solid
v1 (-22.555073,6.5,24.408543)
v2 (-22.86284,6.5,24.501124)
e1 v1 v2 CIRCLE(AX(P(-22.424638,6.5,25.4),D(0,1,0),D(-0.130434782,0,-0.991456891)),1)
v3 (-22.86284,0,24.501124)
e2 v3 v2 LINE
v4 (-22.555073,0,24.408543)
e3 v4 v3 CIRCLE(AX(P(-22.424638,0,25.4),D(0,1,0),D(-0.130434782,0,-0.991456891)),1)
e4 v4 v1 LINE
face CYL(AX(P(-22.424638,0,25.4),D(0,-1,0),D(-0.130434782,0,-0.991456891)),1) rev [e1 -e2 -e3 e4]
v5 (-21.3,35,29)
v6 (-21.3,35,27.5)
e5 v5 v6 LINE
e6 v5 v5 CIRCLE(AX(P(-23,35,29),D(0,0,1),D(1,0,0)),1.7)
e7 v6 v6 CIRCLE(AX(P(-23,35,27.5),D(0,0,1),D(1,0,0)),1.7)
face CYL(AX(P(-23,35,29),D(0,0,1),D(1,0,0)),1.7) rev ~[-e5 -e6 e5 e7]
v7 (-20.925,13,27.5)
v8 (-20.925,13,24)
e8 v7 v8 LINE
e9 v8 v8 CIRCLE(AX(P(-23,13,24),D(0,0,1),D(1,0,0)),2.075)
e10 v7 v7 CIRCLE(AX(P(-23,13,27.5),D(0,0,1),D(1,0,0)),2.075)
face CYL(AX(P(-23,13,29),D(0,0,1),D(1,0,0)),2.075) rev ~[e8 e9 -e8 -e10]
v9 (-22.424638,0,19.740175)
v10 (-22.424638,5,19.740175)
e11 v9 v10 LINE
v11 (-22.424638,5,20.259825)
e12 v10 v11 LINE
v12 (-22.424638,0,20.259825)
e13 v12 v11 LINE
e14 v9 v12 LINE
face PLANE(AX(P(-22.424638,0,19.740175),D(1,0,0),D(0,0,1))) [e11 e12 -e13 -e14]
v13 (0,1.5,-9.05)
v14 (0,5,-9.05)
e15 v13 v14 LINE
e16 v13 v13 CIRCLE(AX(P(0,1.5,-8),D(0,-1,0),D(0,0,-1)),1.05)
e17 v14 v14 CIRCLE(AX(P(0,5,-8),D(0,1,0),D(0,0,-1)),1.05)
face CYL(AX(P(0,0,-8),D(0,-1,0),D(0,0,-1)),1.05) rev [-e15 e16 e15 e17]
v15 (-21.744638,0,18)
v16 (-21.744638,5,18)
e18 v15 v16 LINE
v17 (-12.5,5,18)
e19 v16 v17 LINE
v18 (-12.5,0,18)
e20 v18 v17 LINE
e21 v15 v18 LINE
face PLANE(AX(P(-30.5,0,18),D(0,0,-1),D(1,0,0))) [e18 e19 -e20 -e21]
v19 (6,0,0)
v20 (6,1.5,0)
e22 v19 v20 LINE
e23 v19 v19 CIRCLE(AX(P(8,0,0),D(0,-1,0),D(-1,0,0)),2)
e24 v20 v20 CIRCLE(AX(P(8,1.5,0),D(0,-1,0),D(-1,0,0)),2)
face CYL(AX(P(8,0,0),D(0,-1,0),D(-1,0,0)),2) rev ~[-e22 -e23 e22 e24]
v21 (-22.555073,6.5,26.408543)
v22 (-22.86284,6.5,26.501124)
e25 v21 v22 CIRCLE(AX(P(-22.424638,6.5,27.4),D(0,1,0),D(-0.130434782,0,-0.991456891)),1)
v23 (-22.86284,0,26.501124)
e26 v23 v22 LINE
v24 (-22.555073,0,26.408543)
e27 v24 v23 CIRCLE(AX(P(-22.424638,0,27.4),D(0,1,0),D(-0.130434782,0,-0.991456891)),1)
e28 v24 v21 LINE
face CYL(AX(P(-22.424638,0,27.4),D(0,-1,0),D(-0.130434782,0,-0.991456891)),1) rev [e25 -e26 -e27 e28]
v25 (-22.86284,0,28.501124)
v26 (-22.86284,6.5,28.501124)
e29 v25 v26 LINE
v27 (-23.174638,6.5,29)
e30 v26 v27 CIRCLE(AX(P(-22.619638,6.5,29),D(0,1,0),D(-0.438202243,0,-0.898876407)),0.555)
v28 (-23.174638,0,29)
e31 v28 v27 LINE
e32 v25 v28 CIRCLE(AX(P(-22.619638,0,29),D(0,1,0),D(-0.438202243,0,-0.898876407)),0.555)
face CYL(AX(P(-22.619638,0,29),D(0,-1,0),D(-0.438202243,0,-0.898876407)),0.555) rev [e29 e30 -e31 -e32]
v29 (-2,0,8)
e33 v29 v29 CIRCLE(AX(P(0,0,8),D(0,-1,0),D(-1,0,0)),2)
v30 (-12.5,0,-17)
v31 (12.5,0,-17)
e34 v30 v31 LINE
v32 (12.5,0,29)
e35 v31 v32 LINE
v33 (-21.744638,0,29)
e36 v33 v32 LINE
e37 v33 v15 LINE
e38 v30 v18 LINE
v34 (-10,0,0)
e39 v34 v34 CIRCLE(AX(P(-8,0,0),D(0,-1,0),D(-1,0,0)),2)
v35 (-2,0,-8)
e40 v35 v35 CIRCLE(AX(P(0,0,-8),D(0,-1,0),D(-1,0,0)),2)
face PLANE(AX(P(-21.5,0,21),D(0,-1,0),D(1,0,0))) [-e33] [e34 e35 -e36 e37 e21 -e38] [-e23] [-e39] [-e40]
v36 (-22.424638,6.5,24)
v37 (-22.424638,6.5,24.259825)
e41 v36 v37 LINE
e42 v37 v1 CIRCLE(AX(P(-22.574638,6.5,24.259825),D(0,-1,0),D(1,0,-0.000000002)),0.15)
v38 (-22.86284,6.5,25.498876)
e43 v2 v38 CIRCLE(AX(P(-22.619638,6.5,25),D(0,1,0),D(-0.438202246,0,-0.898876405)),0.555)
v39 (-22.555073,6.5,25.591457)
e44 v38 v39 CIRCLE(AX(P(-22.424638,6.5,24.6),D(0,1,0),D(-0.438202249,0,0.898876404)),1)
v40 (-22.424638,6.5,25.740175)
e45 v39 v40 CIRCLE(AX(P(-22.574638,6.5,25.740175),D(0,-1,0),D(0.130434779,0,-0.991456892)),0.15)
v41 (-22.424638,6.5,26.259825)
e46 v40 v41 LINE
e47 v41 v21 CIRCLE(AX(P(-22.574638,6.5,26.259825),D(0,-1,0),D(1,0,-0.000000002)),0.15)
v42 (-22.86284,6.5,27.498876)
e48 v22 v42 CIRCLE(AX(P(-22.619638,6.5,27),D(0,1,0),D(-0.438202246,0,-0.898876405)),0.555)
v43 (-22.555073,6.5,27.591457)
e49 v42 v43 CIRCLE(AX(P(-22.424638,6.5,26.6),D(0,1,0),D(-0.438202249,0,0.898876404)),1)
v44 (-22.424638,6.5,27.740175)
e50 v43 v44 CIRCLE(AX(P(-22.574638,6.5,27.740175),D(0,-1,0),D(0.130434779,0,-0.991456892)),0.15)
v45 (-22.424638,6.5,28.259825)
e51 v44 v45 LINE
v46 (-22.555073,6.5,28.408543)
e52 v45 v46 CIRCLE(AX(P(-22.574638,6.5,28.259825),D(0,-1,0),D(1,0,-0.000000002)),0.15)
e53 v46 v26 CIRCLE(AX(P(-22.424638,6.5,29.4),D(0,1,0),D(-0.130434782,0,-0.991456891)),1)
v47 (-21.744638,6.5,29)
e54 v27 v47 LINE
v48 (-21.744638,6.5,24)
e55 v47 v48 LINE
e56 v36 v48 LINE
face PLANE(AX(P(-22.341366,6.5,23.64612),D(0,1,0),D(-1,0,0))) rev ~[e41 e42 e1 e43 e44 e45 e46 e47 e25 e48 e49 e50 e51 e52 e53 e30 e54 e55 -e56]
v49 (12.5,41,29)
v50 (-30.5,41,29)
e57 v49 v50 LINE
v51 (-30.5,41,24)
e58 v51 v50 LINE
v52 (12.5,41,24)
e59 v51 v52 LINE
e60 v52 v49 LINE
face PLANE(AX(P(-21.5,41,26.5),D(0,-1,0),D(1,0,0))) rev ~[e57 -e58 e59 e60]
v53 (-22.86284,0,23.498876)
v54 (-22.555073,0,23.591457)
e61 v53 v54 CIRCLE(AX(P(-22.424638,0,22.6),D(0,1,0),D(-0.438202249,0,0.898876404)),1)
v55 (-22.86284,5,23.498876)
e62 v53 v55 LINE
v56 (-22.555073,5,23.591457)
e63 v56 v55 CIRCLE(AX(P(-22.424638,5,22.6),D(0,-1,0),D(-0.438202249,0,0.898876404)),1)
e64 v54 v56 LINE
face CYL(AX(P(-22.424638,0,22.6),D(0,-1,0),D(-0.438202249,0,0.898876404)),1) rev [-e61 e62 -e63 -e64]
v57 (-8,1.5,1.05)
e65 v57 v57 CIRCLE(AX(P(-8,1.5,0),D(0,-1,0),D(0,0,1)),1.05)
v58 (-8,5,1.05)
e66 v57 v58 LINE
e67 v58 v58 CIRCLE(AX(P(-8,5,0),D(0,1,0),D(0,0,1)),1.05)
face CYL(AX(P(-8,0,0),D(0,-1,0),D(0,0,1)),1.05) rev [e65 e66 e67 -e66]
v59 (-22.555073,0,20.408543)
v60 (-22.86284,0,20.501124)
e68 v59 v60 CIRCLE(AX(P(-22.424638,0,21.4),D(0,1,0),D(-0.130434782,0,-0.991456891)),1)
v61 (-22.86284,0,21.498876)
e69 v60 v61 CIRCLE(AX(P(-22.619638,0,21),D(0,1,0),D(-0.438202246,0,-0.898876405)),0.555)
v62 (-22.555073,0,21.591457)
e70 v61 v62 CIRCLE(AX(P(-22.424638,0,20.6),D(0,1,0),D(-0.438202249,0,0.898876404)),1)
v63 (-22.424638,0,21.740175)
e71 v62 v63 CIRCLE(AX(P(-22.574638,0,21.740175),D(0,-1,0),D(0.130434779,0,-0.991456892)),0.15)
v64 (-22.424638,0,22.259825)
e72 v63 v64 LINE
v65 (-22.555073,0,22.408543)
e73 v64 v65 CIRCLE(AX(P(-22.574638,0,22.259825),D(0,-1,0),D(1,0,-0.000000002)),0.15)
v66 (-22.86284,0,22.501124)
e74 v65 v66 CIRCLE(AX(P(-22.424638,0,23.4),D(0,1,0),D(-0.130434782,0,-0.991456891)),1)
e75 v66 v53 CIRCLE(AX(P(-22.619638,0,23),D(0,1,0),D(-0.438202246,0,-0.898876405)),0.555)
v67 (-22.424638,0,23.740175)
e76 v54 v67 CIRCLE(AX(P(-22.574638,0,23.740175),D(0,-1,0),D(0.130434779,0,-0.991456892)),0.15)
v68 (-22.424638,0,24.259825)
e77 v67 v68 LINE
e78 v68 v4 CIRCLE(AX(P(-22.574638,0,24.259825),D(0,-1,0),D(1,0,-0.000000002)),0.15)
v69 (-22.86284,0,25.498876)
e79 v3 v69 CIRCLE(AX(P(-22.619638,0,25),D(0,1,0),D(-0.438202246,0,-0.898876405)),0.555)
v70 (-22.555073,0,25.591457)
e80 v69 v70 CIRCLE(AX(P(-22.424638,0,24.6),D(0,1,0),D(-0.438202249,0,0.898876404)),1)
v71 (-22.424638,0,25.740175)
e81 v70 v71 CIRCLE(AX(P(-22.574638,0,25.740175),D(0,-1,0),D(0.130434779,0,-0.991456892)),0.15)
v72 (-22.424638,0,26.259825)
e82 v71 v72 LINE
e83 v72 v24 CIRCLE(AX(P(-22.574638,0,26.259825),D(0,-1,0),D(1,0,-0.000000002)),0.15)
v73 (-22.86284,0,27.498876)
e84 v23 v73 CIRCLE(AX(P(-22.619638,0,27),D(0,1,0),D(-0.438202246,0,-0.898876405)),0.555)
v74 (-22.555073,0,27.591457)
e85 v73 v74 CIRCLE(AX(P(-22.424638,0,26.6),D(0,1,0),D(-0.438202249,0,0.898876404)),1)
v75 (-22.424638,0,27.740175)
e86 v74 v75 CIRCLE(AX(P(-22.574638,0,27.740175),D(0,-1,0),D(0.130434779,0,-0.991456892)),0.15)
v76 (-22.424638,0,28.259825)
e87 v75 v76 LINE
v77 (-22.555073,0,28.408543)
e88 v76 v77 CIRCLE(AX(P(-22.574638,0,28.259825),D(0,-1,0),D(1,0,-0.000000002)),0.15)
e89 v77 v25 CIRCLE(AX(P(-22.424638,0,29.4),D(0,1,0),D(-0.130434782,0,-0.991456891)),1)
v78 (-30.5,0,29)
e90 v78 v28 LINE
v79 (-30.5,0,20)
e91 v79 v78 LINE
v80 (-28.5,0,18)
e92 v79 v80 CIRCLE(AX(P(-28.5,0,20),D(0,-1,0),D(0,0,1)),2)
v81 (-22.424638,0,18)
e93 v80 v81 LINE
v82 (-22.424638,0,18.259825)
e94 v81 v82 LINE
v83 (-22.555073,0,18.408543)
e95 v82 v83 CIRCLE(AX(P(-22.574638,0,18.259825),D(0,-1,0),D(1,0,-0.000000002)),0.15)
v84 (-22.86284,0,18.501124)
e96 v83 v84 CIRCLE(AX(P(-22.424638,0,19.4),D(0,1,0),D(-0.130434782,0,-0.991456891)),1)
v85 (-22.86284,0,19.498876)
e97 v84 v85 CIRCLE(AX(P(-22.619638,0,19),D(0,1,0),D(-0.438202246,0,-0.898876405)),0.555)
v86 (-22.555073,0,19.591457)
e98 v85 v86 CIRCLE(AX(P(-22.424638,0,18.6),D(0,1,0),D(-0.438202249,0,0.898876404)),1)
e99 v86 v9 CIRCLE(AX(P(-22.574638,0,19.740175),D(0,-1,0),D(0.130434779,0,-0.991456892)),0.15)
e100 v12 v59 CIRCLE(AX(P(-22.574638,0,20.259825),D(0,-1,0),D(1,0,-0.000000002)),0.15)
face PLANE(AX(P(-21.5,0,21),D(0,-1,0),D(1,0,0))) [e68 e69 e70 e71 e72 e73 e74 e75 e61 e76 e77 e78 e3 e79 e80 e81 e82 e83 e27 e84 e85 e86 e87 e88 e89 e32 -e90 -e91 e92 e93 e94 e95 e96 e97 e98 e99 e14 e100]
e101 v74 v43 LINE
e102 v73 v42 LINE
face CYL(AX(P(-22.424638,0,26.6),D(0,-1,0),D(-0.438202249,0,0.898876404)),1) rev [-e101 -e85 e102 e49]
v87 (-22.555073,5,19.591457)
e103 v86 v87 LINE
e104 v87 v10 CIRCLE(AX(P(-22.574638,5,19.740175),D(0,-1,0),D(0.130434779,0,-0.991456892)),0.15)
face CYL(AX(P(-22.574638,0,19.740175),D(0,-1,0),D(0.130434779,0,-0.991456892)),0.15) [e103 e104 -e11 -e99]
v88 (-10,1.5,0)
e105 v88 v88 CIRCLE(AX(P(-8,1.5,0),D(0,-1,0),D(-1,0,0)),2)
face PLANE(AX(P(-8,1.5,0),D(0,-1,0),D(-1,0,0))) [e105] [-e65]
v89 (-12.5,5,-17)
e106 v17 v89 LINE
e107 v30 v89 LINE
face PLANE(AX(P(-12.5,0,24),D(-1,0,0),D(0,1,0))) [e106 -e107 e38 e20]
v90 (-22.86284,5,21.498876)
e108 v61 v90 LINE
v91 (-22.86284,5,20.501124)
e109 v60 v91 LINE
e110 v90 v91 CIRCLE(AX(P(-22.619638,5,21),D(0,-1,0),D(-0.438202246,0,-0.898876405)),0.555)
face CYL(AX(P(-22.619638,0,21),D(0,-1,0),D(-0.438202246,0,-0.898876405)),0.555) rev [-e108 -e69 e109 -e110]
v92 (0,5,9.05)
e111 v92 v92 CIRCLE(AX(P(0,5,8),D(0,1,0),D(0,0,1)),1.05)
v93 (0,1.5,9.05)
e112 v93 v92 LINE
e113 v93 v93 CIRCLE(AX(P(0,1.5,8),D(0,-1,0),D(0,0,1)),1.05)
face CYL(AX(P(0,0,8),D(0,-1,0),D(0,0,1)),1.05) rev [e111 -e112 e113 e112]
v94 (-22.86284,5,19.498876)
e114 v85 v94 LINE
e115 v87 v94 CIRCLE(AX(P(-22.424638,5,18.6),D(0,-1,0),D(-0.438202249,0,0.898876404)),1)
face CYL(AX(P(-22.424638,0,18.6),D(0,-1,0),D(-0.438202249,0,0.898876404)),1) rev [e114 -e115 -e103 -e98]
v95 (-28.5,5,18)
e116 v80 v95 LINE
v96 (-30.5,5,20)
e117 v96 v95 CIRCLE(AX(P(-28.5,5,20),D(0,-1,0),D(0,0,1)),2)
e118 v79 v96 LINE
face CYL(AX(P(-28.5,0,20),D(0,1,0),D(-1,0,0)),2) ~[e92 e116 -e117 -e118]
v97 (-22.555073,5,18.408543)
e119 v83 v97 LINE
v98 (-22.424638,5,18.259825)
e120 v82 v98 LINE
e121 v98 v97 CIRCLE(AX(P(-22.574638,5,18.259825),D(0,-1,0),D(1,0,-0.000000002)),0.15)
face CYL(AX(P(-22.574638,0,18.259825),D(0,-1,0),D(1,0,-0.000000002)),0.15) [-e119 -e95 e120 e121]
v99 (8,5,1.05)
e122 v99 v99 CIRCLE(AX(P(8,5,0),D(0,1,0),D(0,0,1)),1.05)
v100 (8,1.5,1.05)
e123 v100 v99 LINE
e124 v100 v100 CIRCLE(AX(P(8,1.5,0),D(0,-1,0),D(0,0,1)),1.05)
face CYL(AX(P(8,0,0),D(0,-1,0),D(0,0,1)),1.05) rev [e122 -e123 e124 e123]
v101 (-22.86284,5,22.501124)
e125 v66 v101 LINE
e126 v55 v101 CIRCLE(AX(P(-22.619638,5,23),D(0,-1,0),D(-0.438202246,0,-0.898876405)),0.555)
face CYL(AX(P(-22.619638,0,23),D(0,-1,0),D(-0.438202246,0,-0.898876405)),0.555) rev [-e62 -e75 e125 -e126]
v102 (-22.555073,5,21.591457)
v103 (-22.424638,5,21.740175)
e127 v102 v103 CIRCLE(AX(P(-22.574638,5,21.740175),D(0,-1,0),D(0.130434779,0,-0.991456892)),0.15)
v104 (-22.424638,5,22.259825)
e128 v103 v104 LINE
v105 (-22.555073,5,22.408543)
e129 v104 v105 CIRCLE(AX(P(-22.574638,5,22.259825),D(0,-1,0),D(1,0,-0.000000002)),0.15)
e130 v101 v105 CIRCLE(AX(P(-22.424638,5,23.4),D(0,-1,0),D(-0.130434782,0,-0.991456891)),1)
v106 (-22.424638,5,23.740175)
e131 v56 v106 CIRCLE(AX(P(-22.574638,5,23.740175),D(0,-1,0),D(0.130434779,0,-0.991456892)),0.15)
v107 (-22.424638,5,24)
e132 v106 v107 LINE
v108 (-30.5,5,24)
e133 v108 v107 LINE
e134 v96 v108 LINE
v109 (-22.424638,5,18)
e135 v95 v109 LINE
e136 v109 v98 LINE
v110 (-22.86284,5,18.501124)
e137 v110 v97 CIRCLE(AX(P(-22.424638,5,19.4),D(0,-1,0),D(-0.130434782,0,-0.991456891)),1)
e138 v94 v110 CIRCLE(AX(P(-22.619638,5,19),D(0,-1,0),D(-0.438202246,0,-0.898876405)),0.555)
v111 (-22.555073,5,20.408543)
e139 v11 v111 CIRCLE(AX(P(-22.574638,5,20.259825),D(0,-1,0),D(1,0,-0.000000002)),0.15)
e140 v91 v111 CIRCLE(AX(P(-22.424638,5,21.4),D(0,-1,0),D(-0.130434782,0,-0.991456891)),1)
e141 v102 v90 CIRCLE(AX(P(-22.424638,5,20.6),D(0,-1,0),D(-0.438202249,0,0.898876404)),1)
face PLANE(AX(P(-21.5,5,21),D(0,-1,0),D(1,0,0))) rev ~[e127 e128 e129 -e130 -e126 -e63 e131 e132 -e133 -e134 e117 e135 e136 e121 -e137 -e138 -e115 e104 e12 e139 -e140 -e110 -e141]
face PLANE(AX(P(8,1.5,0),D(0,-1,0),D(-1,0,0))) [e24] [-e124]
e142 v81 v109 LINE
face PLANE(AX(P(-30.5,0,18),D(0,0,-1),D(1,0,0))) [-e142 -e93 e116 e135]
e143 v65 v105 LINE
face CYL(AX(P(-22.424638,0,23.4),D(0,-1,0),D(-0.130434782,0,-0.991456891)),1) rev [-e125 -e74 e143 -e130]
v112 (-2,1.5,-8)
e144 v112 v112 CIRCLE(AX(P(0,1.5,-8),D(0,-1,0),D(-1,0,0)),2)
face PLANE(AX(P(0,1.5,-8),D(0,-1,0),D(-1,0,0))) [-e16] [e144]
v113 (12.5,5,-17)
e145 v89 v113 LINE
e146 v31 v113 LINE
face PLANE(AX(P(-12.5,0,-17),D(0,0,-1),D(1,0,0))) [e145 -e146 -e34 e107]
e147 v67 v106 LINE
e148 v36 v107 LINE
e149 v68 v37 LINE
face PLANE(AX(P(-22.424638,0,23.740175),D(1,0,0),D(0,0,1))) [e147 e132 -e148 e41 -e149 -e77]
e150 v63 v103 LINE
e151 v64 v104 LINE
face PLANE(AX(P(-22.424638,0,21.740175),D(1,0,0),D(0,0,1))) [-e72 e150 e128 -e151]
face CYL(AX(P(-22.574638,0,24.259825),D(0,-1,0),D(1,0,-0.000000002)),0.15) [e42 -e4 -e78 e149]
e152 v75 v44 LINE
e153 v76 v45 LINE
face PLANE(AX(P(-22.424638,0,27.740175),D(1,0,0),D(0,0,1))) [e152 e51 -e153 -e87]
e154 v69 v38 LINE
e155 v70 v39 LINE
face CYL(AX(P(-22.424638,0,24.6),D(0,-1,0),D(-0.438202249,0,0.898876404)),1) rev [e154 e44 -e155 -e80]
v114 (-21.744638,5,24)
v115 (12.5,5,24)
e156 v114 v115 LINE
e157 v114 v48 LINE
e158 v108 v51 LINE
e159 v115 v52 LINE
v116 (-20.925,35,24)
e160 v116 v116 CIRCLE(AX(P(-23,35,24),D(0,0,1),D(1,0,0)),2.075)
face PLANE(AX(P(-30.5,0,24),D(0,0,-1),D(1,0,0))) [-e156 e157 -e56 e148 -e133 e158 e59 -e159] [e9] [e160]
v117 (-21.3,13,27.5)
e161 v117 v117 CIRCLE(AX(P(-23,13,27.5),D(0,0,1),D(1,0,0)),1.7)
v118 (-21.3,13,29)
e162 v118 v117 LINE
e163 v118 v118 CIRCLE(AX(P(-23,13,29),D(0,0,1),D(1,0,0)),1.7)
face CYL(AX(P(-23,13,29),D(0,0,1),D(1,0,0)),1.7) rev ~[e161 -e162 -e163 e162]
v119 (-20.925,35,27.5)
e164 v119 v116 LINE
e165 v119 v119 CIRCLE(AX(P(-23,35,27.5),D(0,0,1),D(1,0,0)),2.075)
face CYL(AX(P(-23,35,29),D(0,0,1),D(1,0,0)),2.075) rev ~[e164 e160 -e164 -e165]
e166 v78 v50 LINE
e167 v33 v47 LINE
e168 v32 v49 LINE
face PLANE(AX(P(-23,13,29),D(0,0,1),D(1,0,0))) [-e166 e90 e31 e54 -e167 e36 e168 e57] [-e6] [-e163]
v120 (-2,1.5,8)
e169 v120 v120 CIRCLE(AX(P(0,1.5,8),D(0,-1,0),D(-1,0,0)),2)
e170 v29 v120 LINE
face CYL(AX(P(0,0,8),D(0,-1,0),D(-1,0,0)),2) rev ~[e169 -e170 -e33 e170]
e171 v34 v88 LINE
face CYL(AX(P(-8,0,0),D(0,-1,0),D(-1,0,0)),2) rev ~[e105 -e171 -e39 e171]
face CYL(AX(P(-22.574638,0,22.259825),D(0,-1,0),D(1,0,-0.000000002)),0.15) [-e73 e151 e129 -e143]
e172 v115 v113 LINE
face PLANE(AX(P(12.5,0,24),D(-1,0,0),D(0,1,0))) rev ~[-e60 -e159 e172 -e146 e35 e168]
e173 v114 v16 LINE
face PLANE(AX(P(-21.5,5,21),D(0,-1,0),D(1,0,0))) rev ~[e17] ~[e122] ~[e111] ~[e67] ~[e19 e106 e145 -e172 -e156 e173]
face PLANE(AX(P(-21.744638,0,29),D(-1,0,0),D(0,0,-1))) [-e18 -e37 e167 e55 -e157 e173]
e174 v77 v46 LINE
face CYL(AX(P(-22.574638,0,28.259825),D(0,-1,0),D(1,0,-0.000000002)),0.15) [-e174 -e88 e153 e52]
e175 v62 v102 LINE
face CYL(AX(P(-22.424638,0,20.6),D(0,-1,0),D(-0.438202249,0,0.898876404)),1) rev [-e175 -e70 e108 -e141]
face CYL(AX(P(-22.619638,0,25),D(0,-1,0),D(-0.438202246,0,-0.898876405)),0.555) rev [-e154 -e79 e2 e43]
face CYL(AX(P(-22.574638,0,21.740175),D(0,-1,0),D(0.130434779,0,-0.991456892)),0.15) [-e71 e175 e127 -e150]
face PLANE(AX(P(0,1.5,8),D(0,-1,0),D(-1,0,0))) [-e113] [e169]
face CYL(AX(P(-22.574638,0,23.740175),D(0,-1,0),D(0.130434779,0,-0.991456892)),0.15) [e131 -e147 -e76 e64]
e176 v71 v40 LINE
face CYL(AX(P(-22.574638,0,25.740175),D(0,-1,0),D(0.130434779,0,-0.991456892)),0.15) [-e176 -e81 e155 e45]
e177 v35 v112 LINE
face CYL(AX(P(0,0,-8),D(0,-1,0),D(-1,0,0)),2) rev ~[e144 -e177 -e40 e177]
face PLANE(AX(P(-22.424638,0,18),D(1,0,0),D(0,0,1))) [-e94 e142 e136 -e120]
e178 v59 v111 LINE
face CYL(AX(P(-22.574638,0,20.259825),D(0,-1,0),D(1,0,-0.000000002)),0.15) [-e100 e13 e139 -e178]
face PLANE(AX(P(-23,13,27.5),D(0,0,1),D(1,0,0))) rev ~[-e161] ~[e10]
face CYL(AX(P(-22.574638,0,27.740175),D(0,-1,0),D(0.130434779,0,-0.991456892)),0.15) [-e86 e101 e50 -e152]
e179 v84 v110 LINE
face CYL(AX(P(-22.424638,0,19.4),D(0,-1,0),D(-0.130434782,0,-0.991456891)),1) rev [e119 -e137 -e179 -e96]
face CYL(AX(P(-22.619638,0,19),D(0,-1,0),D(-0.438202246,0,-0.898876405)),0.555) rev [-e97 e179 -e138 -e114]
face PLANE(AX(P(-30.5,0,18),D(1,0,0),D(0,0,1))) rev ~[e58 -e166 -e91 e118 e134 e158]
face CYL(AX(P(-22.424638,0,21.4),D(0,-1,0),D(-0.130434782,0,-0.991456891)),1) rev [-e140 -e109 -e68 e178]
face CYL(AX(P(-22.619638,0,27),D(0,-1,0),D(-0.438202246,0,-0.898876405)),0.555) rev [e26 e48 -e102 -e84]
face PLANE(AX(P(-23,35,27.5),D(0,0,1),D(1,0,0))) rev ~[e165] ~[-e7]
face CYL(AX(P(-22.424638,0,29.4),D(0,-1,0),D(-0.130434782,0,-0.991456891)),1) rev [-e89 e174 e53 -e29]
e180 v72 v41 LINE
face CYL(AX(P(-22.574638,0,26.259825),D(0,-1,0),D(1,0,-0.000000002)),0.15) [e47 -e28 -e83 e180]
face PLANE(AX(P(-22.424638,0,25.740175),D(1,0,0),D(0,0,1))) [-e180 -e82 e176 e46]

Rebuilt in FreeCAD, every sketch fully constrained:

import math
import FreeCAD as App
import Part
import Sketcher
from FreeCAD import Vector


def edges_at(feature, points):
    """Names of the edges that pass closest to the given points."""
    edges = feature.Shape.Edges
    near = lambda p: min(range(len(edges)), key=lambda i: edges[i].distToShape(Part.Vertex(*p))[0])
    return sorted({f"Edge{near(p) + 1}" for p in points})


def add_polygon(sketch, points):
    """Adds a closed chain of lines whose ends are joined by coincident constraints."""
    first, n = sketch.GeometryCount, len(points)
    for a, b in zip(points, points[1:] + points[:1]):
        sketch.addGeometry(Part.LineSegment(App.Vector(*a, 0), App.Vector(*b, 0)), False)
    for i in range(n):
        sketch.addConstraint(Sketcher.Constraint("Coincident", first + i, 2, first + (i + 1) % n, 1))

doc = App.newDocument("Part")
params = doc.addObject("Spreadsheet::Sheet", "Params")
for row, (alias, value) in enumerate([
    ("sketch1_diameter", "2.1 mm"),
    ("sketch1_width", "25 mm"),
    ("sketch1_height", "41 mm"),
    ("pad1_length", "5 mm"),
    ("sketch2_width", "25 mm"),
    ("sketch2_height", "41 mm"),
    ("pad2_length", "5 mm"),
    ("sketch3_width", "18 mm"),
    ("sketch3_height", "5 mm"),
    ("pad3_length", "41 mm"),
    ("sketch4_diameter", "4.15 mm"),
    ("pocket1_length", "5 mm"),
    ("sketch5_diameter", "3.4 mm"),
    ("sketch5_diameter2", "4.15 mm"),
    ("pad4_length", "1.5 mm"),
    ("sketch6_width", "18 mm"),
    ("sketch6_height", "6 mm"),
    ("pad5_length", "5 mm"),
    ("fillet_radius", "2 mm"),
    ("sketch7_diameter", "4 mm"),
    ("pocket2_length", "1.5 mm"),
    ("sketch8_radius", "1 mm"),
    ("sketch8_height", "11 mm"),
    ("sketch8_radius2", "0.15 mm"),
    ("sketch8_width", "1.43 mm"),
    ("sketch8_width2", "0.68 mm"),
    ("pocket3_length", "6.5 mm"),
], start=1):
    params.set(f"A{row}", alias)
    params.set(f"B{row}", "=" + value)
    params.setAlias(f"B{row}", alias)

body = doc.addObject("PartDesign::Body", "Body")

# Sketch on XZ plane
sketch1 = body.newObject("Sketcher::SketchObject", "Sketch")
sketch1.AttachmentSupport = (doc.getObject("XZ_Plane"), [""])
sketch1.MapMode = "FlatFace"
add_polygon(sketch1, [(-12.5, -17), (-12.5, 24), (12.5, 24), (12.5, -17)])  # lines 0-3
sketch1.addGeometry(Part.Circle(Vector(0, 8, 0), Vector(0, 0, 1), 1.1), False)  # 4
sketch1.addGeometry(Part.Circle(Vector(-8, 0, 0), Vector(0, 0, 1), 1.1), False)  # 5
sketch1.addGeometry(Part.Circle(Vector(8, 0, 0), Vector(0, 0, 1), 1.1), False)  # 6
sketch1.addGeometry(Part.Circle(Vector(0, -8, 0), Vector(0, 0, 1), 1.1), False)  # 7
sketch1.addConstraint(Sketcher.Constraint("Vertical", 0))
sketch1.addConstraint(Sketcher.Constraint("Horizontal", 1))
sketch1.addConstraint(Sketcher.Constraint("Vertical", 2))
sketch1.addConstraint(Sketcher.Constraint("Horizontal", 3))
sketch1.addConstraint(Sketcher.Constraint("Equal", 4, 5))
sketch1.addConstraint(Sketcher.Constraint("Equal", 5, 6))
sketch1.addConstraint(Sketcher.Constraint("Equal", 6, 7))
sketch1.addConstraint(Sketcher.Constraint("Symmetric", 5, 3, 6, 3, -1, 1))
sketch1.addConstraint(Sketcher.Constraint("Symmetric", 4, 3, 7, 3, -1, 1))
sketch1.addConstraint(Sketcher.Constraint("PointOnObject", 4, 3, -2))
sketch1.addConstraint(Sketcher.Constraint("PointOnObject", 5, 3, -1))
sketch1.addConstraint(Sketcher.Constraint("Diameter", 4, 2.1))
sketch1.addConstraint(Sketcher.Constraint("DistanceX", 1, 1, 1, 2, 25.0))
sketch1.addConstraint(Sketcher.Constraint("DistanceY", 0, 1, 0, 2, 41.0))
sketch1.addConstraint(Sketcher.Constraint("DistanceY", -1, 1, 4, 3, 8.0))
sketch1.addConstraint(Sketcher.Constraint("DistanceX", 5, 3, -1, 1, 8.0))
sketch1.addConstraint(Sketcher.Constraint("DistanceY", -1, 1, 0, 2, 24.0))
sketch1.addConstraint(Sketcher.Constraint("DistanceX", 0, 2, -1, 1, 12.5))
sketch1.setExpression("Constraints[15]", "Params.sketch1_diameter")
sketch1.setExpression("Constraints[16]", "Params.sketch1_width")
sketch1.setExpression("Constraints[17]", "Params.sketch1_height")
pad1 = body.newObject("PartDesign::Pad", "Pad")
pad1.Profile = sketch1
pad1.setExpression("Length", "Params.pad1_length")
pad1.Reversed = True

# Sketch on XY plane
sketch2 = body.newObject("Sketcher::SketchObject", "Sketch001")
sketch2.AttachmentSupport = (doc.getObject("XY_Plane"), [""])
sketch2.MapMode = "FlatFace"
sketch2.AttachmentOffset = App.Placement(Vector(0, 0, 24), App.Rotation())
add_polygon(sketch2, [(-12, 41), (-12, 0), (12, 0), (12, 41)])  # lines 0-3
sketch2.addConstraint(Sketcher.Constraint("Vertical", 0))
sketch2.addConstraint(Sketcher.Constraint("Horizontal", 1))
sketch2.addConstraint(Sketcher.Constraint("Vertical", 2))
sketch2.addConstraint(Sketcher.Constraint("Horizontal", 3))
sketch2.addConstraint(Sketcher.Constraint("Symmetric", 0, 2, 1, 2, -1, 1))
sketch2.addConstraint(Sketcher.Constraint("DistanceX", 1, 1, 1, 2, 25.0))
sketch2.addConstraint(Sketcher.Constraint("DistanceY", 0, 2, 0, 1, 41.0))
sketch2.setExpression("Constraints[9]", "Params.sketch2_width")
sketch2.setExpression("Constraints[10]", "Params.sketch2_height")
pad2 = body.newObject("PartDesign::Pad", "Pad001")
pad2.Profile = sketch2
pad2.setExpression("Length", "Params.pad2_length")

# Sketch on XZ plane
sketch3 = body.newObject("Sketcher::SketchObject", "Sketch002")
sketch3.AttachmentSupport = (doc.getObject("XZ_Plane"), [""])
sketch3.MapMode = "FlatFace"
add_polygon(sketch3, [(-30, 29), (-30, 24), (-12, 24), (-12, 29)])  # lines 0-3
sketch3.addConstraint(Sketcher.Constraint("Vertical", 0))
sketch3.addConstraint(Sketcher.Constraint("Horizontal", 1))
sketch3.addConstraint(Sketcher.Constraint("Vertical", 2))
sketch3.addConstraint(Sketcher.Constraint("Horizontal", 3))
sketch3.addConstraint(Sketcher.Constraint("DistanceX", 1, 1, 1, 2, 18.0))
sketch3.addConstraint(Sketcher.Constraint("DistanceY", 0, 2, 0, 1, 5.0))
sketch3.addConstraint(Sketcher.Constraint("DistanceY", -1, 1, 0, 2, 24.0))
sketch3.addConstraint(Sketcher.Constraint("DistanceX", 0, 2, -1, 1, 30.5))
sketch3.setExpression("Constraints[8]", "Params.sketch3_width")
sketch3.setExpression("Constraints[9]", "Params.sketch3_height")
pad3 = body.newObject("PartDesign::Pad", "Pad002")
pad3.Profile = sketch3
pad3.setExpression("Length", "Params.pad3_length")
pad3.Reversed = True

# Sketch on XY plane
sketch4 = body.newObject("Sketcher::SketchObject", "Sketch003")
sketch4.AttachmentSupport = (doc.getObject("XY_Plane"), [""])
sketch4.MapMode = "FlatFace"
sketch4.AttachmentOffset = App.Placement(Vector(0, 0, 29), App.Rotation())
sketch4.addGeometry(Part.Circle(Vector(-23, 13, 0), Vector(0, 0, 1), 2.1), False)
sketch4.addGeometry(Part.Circle(Vector(-23, 35, 0), Vector(0, 0, 1), 2.1), False)
sketch4.addConstraint(Sketcher.Constraint("Equal", 0, 1))
sketch4.addConstraint(Sketcher.Constraint("Vertical", 0, 3, 1, 3))
sketch4.addConstraint(Sketcher.Constraint("Diameter", 0, 4.15))
sketch4.addConstraint(Sketcher.Constraint("DistanceX", 0, 3, -1, 1, 23.0))
sketch4.addConstraint(Sketcher.Constraint("DistanceY", -1, 1, 0, 3, 13.0))
sketch4.addConstraint(Sketcher.Constraint("DistanceY", -1, 1, 1, 3, 35.0))
sketch4.setExpression("Constraints[2]", "Params.sketch4_diameter")
pocket1 = body.newObject("PartDesign::Pocket", "Pocket")
pocket1.Profile = sketch4
pocket1.setExpression("Length", "Params.pocket1_length")

# Sketch on XY plane
sketch5 = body.newObject("Sketcher::SketchObject", "Sketch004")
sketch5.AttachmentSupport = (doc.getObject("XY_Plane"), [""])
sketch5.MapMode = "FlatFace"
sketch5.AttachmentOffset = App.Placement(Vector(0, 0, 29), App.Rotation())
sketch5.addGeometry(Part.Circle(Vector(-23, 13, 0), Vector(0, 0, 1), 2.1), False)
sketch5.addGeometry(Part.Circle(Vector(-23, 13, 0), Vector(0, 0, 1), 1.7), False)
sketch5.addGeometry(Part.Circle(Vector(-23, 35, 0), Vector(0, 0, 1), 2.1), False)
sketch5.addGeometry(Part.Circle(Vector(-23, 35, 0), Vector(0, 0, 1), 1.7), False)
sketch5.addConstraint(Sketcher.Constraint("Coincident", 1, 3, 0, 3))
sketch5.addConstraint(Sketcher.Constraint("Coincident", 3, 3, 2, 3))
sketch5.addConstraint(Sketcher.Constraint("Equal", 0, 2))
sketch5.addConstraint(Sketcher.Constraint("Equal", 1, 3))
sketch5.addConstraint(Sketcher.Constraint("Vertical", 1, 3, 2, 3))
sketch5.addConstraint(Sketcher.Constraint("Diameter", 1, 3.4))
sketch5.addConstraint(Sketcher.Constraint("Diameter", 0, 4.15))
sketch5.addConstraint(Sketcher.Constraint("DistanceX", 0, 3, -1, 1, 23.0))
sketch5.addConstraint(Sketcher.Constraint("DistanceY", -1, 1, 0, 3, 13.0))
sketch5.addConstraint(Sketcher.Constraint("DistanceY", -1, 1, 2, 3, 35.0))
sketch5.setExpression("Constraints[5]", "Params.sketch5_diameter")
sketch5.setExpression("Constraints[6]", "Params.sketch5_diameter2")
pad4 = body.newObject("PartDesign::Pad", "Pad003")
pad4.Profile = sketch5
pad4.setExpression("Length", "Params.pad4_length")
pad4.Reversed = True

# Sketch on XZ plane
sketch6 = body.newObject("Sketcher::SketchObject", "Sketch005")
sketch6.AttachmentSupport = (doc.getObject("XZ_Plane"), [""])
sketch6.MapMode = "FlatFace"
add_polygon(sketch6, [(-30, 24), (-30, 18), (-12, 18), (-12, 24)])  # lines 0-3
sketch6.addConstraint(Sketcher.Constraint("Vertical", 0))
sketch6.addConstraint(Sketcher.Constraint("Horizontal", 1))
sketch6.addConstraint(Sketcher.Constraint("Vertical", 2))
sketch6.addConstraint(Sketcher.Constraint("Horizontal", 3))
sketch6.addConstraint(Sketcher.Constraint("DistanceX", 1, 1, 1, 2, 18.0))
sketch6.addConstraint(Sketcher.Constraint("DistanceY", 0, 2, 0, 1, 6.0))
sketch6.addConstraint(Sketcher.Constraint("DistanceY", -1, 1, 0, 2, 18.0))
sketch6.addConstraint(Sketcher.Constraint("DistanceX", 0, 2, -1, 1, 30.5))
sketch6.setExpression("Constraints[8]", "Params.sketch6_width")
sketch6.setExpression("Constraints[9]", "Params.sketch6_height")
pad5 = body.newObject("PartDesign::Pad", "Pad004")
pad5.Profile = sketch6
pad5.setExpression("Length", "Params.pad5_length")
pad5.Reversed = True
doc.recompute()

fillet = body.newObject("PartDesign::Fillet", "Fillet")
fillet.Base = (pad5, edges_at(pad5, [(-30.5, 2.5, 18)]))
fillet.setExpression("Radius", "Params.fillet_radius")

# Sketch on XZ plane
sketch7 = body.newObject("Sketcher::SketchObject", "Sketch006")
sketch7.AttachmentSupport = (doc.getObject("XZ_Plane"), [""])
sketch7.MapMode = "FlatFace"
sketch7.addGeometry(Part.Circle(Vector(0, 8, 0), Vector(0, 0, 1), 2), False)
sketch7.addGeometry(Part.Circle(Vector(-8, 0, 0), Vector(0, 0, 1), 2), False)
sketch7.addGeometry(Part.Circle(Vector(0, -8, 0), Vector(0, 0, 1), 2), False)
sketch7.addGeometry(Part.Circle(Vector(8, 0, 0), Vector(0, 0, 1), 2), False)
sketch7.addConstraint(Sketcher.Constraint("Equal", 0, 1))
sketch7.addConstraint(Sketcher.Constraint("Equal", 1, 2))
sketch7.addConstraint(Sketcher.Constraint("Equal", 2, 3))
sketch7.addConstraint(Sketcher.Constraint("Symmetric", 0, 3, 2, 3, -1, 1))
sketch7.addConstraint(Sketcher.Constraint("Symmetric", 1, 3, 3, 3, -1, 1))
sketch7.addConstraint(Sketcher.Constraint("PointOnObject", 0, 3, -2))
sketch7.addConstraint(Sketcher.Constraint("PointOnObject", 1, 3, -1))
sketch7.addConstraint(Sketcher.Constraint("Diameter", 0, 4.0))
sketch7.addConstraint(Sketcher.Constraint("DistanceY", -1, 1, 0, 3, 8.0))
sketch7.addConstraint(Sketcher.Constraint("DistanceX", 1, 3, -1, 1, 8.0))
sketch7.setExpression("Constraints[7]", "Params.sketch7_diameter")
pocket2 = body.newObject("PartDesign::Pocket", "Pocket001")
pocket2.Profile = sketch7
pocket2.setExpression("Length", "Params.pocket2_length")

# Sketch on XZ plane
sketch8 = body.newObject("Sketcher::SketchObject", "Sketch007")
sketch8.AttachmentSupport = (doc.getObject("XZ_Plane"), [""])
sketch8.MapMode = "FlatFace"
sketch8.addGeometry(Part.LineSegment(Vector(-21.74, 18, 0), Vector(-21.74, 29, 0)), False)
sketch8.addGeometry(Part.LineSegment(Vector(-21.74, 29, 0), Vector(-23.17, 29, 0)), False)
sketch8.addGeometry(Part.ArcOfCircle(Part.Circle(Vector(-22.62, 29, 0), Vector(0, 0, 1), 0.55), math.radians(180), math.radians(244)), False)
sketch8.addGeometry(Part.ArcOfCircle(Part.Circle(Vector(-22.42, 29.4, 0), Vector(0, 0, 1), 1), math.radians(-115.99), math.radians(-97.49)), False)
sketch8.addGeometry(Part.ArcOfCircle(Part.Circle(Vector(-22.57, 28.26, 0), Vector(0, 0, 1), 0.15), math.radians(0), math.radians(83)), False)
sketch8.addGeometry(Part.LineSegment(Vector(-22.42, 28.26, 0), Vector(-22.42, 27.74, 0)), False)
sketch8.addGeometry(Part.ArcOfCircle(Part.Circle(Vector(-22.57, 27.74, 0), Vector(0, 0, 1), 0.15), math.radians(-83), math.radians(0)), False)
sketch8.addGeometry(Part.ArcOfCircle(Part.Circle(Vector(-22.42, 26.6, 0), Vector(0, 0, 1), 1), math.radians(97.49), math.radians(115.99)), False)
sketch8.addGeometry(Part.ArcOfCircle(Part.Circle(Vector(-22.62, 27, 0), Vector(0, 0, 1), 0.55), math.radians(116), math.radians(244)), False)
sketch8.addGeometry(Part.ArcOfCircle(Part.Circle(Vector(-22.42, 27.4, 0), Vector(0, 0, 1), 1), math.radians(-115.99), math.radians(-97.49)), False)
sketch8.addGeometry(Part.ArcOfCircle(Part.Circle(Vector(-22.57, 26.26, 0), Vector(0, 0, 1), 0.15), math.radians(0), math.radians(83)), False)
sketch8.addGeometry(Part.LineSegment(Vector(-22.42, 26.26, 0), Vector(-22.42, 25.74, 0)), False)
sketch8.addGeometry(Part.ArcOfCircle(Part.Circle(Vector(-22.57, 25.74, 0), Vector(0, 0, 1), 0.15), math.radians(-83), math.radians(0)), False)
sketch8.addGeometry(Part.ArcOfCircle(Part.Circle(Vector(-22.42, 24.6, 0), Vector(0, 0, 1), 1), math.radians(97.49), math.radians(115.99)), False)
sketch8.addGeometry(Part.ArcOfCircle(Part.Circle(Vector(-22.62, 25, 0), Vector(0, 0, 1), 0.55), math.radians(116), math.radians(244)), False)
sketch8.addGeometry(Part.ArcOfCircle(Part.Circle(Vector(-22.42, 25.4, 0), Vector(0, 0, 1), 1), math.radians(-115.99), math.radians(-97.49)), False)
sketch8.addGeometry(Part.ArcOfCircle(Part.Circle(Vector(-22.57, 24.26, 0), Vector(0, 0, 1), 0.15), math.radians(0), math.radians(83)), False)
sketch8.addGeometry(Part.LineSegment(Vector(-22.42, 24.26, 0), Vector(-22.42, 23.74, 0)), False)
sketch8.addGeometry(Part.ArcOfCircle(Part.Circle(Vector(-22.57, 23.74, 0), Vector(0, 0, 1), 0.15), math.radians(-83), math.radians(0)), False)
sketch8.addGeometry(Part.ArcOfCircle(Part.Circle(Vector(-22.42, 22.6, 0), Vector(0, 0, 1), 1), math.radians(97.49), math.radians(115.99)), False)
sketch8.addGeometry(Part.ArcOfCircle(Part.Circle(Vector(-22.62, 23, 0), Vector(0, 0, 1), 0.55), math.radians(116), math.radians(244)), False)
sketch8.addGeometry(Part.ArcOfCircle(Part.Circle(Vector(-22.42, 23.4, 0), Vector(0, 0, 1), 1), math.radians(-115.99), math.radians(-97.49)), False)
sketch8.addGeometry(Part.ArcOfCircle(Part.Circle(Vector(-22.57, 22.26, 0), Vector(0, 0, 1), 0.15), math.radians(0), math.radians(83)), False)
sketch8.addGeometry(Part.LineSegment(Vector(-22.42, 22.26, 0), Vector(-22.42, 21.74, 0)), False)
sketch8.addGeometry(Part.ArcOfCircle(Part.Circle(Vector(-22.57, 21.74, 0), Vector(0, 0, 1), 0.15), math.radians(-83), math.radians(0)), False)
sketch8.addGeometry(Part.ArcOfCircle(Part.Circle(Vector(-22.42, 20.6, 0), Vector(0, 0, 1), 1), math.radians(97.49), math.radians(115.99)), False)
sketch8.addGeometry(Part.ArcOfCircle(Part.Circle(Vector(-22.62, 21, 0), Vector(0, 0, 1), 0.55), math.radians(116), math.radians(244)), False)
sketch8.addGeometry(Part.ArcOfCircle(Part.Circle(Vector(-22.42, 21.4, 0), Vector(0, 0, 1), 1), math.radians(-115.99), math.radians(-97.49)), False)
sketch8.addGeometry(Part.ArcOfCircle(Part.Circle(Vector(-22.57, 20.26, 0), Vector(0, 0, 1), 0.15), math.radians(0), math.radians(83)), False)
sketch8.addGeometry(Part.LineSegment(Vector(-22.42, 20.26, 0), Vector(-22.42, 19.74, 0)), False)
sketch8.addGeometry(Part.ArcOfCircle(Part.Circle(Vector(-22.57, 19.74, 0), Vector(0, 0, 1), 0.15), math.radians(-83), math.radians(0)), False)
sketch8.addGeometry(Part.ArcOfCircle(Part.Circle(Vector(-22.42, 18.6, 0), Vector(0, 0, 1), 1), math.radians(97.49), math.radians(115.99)), False)
sketch8.addGeometry(Part.ArcOfCircle(Part.Circle(Vector(-22.62, 19, 0), Vector(0, 0, 1), 0.55), math.radians(116), math.radians(244)), False)
sketch8.addGeometry(Part.ArcOfCircle(Part.Circle(Vector(-22.42, 19.4, 0), Vector(0, 0, 1), 1), math.radians(-115.99), math.radians(-97.49)), False)
sketch8.addGeometry(Part.ArcOfCircle(Part.Circle(Vector(-22.57, 18.26, 0), Vector(0, 0, 1), 0.15), math.radians(0), math.radians(83)), False)
sketch8.addGeometry(Part.LineSegment(Vector(-22.42, 18.26, 0), Vector(-22.42, 18, 0)), False)
sketch8.addGeometry(Part.LineSegment(Vector(-22.42, 18, 0), Vector(-21.74, 18, 0)), False)
sketch8.addConstraint(Sketcher.Constraint("Coincident", 0, 2, 1, 1))
sketch8.addConstraint(Sketcher.Constraint("Coincident", 1, 2, 2, 1))
sketch8.addConstraint(Sketcher.Constraint("Tangent", 2, 2, 3, 1))
sketch8.addConstraint(Sketcher.Constraint("Tangent", 3, 2, 4, 2))
sketch8.addConstraint(Sketcher.Constraint("Tangent", 4, 1, 5, 1))
sketch8.addConstraint(Sketcher.Constraint("Tangent", 5, 2, 6, 2))
sketch8.addConstraint(Sketcher.Constraint("Tangent", 6, 1, 7, 1))
sketch8.addConstraint(Sketcher.Constraint("Tangent", 7, 2, 8, 1))
sketch8.addConstraint(Sketcher.Constraint("Tangent", 8, 2, 9, 1))
sketch8.addConstraint(Sketcher.Constraint("Tangent", 9, 2, 10, 2))
sketch8.addConstraint(Sketcher.Constraint("Tangent", 10, 1, 11, 1))
sketch8.addConstraint(Sketcher.Constraint("Tangent", 11, 2, 12, 2))
sketch8.addConstraint(Sketcher.Constraint("Tangent", 12, 1, 13, 1))
sketch8.addConstraint(Sketcher.Constraint("Tangent", 13, 2, 14, 1))
sketch8.addConstraint(Sketcher.Constraint("Tangent", 14, 2, 15, 1))
sketch8.addConstraint(Sketcher.Constraint("Tangent", 15, 2, 16, 2))
sketch8.addConstraint(Sketcher.Constraint("Tangent", 16, 1, 17, 1))
sketch8.addConstraint(Sketcher.Constraint("Tangent", 17, 2, 18, 2))
sketch8.addConstraint(Sketcher.Constraint("Tangent", 18, 1, 19, 1))
sketch8.addConstraint(Sketcher.Constraint("Tangent", 19, 2, 20, 1))
sketch8.addConstraint(Sketcher.Constraint("Tangent", 20, 2, 21, 1))
sketch8.addConstraint(Sketcher.Constraint("Tangent", 21, 2, 22, 2))
sketch8.addConstraint(Sketcher.Constraint("Tangent", 22, 1, 23, 1))
sketch8.addConstraint(Sketcher.Constraint("Tangent", 23, 2, 24, 2))
sketch8.addConstraint(Sketcher.Constraint("Tangent", 24, 1, 25, 1))
sketch8.addConstraint(Sketcher.Constraint("Tangent", 25, 2, 26, 1))
sketch8.addConstraint(Sketcher.Constraint("Tangent", 26, 2, 27, 1))
sketch8.addConstraint(Sketcher.Constraint("Tangent", 27, 2, 28, 2))
sketch8.addConstraint(Sketcher.Constraint("Tangent", 28, 1, 29, 1))
sketch8.addConstraint(Sketcher.Constraint("Tangent", 29, 2, 30, 2))
sketch8.addConstraint(Sketcher.Constraint("Tangent", 30, 1, 31, 1))
sketch8.addConstraint(Sketcher.Constraint("Tangent", 31, 2, 32, 1))
sketch8.addConstraint(Sketcher.Constraint("Tangent", 32, 2, 33, 1))
sketch8.addConstraint(Sketcher.Constraint("Tangent", 33, 2, 34, 2))
sketch8.addConstraint(Sketcher.Constraint("Tangent", 34, 1, 35, 1))
sketch8.addConstraint(Sketcher.Constraint("Coincident", 35, 2, 36, 1))
sketch8.addConstraint(Sketcher.Constraint("Coincident", 36, 2, 0, 1))
sketch8.addConstraint(Sketcher.Constraint("Vertical", 0))
sketch8.addConstraint(Sketcher.Constraint("Horizontal", 1))
sketch8.addConstraint(Sketcher.Constraint("Vertical", 5))
sketch8.addConstraint(Sketcher.Constraint("Vertical", 11))
sketch8.addConstraint(Sketcher.Constraint("Vertical", 17))
sketch8.addConstraint(Sketcher.Constraint("Vertical", 23))
sketch8.addConstraint(Sketcher.Constraint("Vertical", 29))
sketch8.addConstraint(Sketcher.Constraint("Vertical", 35))
sketch8.addConstraint(Sketcher.Constraint("Horizontal", 36))
sketch8.addConstraint(Sketcher.Constraint("Equal", 4, 6))
sketch8.addConstraint(Sketcher.Constraint("Equal", 3, 7))
sketch8.addConstraint(Sketcher.Constraint("Equal", 2, 8))
sketch8.addConstraint(Sketcher.Constraint("Equal", 7, 9))
sketch8.addConstraint(Sketcher.Constraint("Equal", 6, 10))
sketch8.addConstraint(Sketcher.Constraint("Equal", 10, 12))
sketch8.addConstraint(Sketcher.Constraint("Equal", 9, 13))
sketch8.addConstraint(Sketcher.Constraint("Equal", 8, 14))
sketch8.addConstraint(Sketcher.Constraint("Equal", 13, 15))
sketch8.addConstraint(Sketcher.Constraint("Equal", 12, 16))
sketch8.addConstraint(Sketcher.Constraint("Equal", 16, 18))
sketch8.addConstraint(Sketcher.Constraint("Equal", 15, 19))
sketch8.addConstraint(Sketcher.Constraint("Equal", 14, 20))
sketch8.addConstraint(Sketcher.Constraint("Equal", 19, 21))
sketch8.addConstraint(Sketcher.Constraint("Equal", 18, 22))
sketch8.addConstraint(Sketcher.Constraint("Equal", 22, 24))
sketch8.addConstraint(Sketcher.Constraint("Equal", 21, 25))
sketch8.addConstraint(Sketcher.Constraint("Equal", 20, 26))
sketch8.addConstraint(Sketcher.Constraint("Equal", 25, 27))
sketch8.addConstraint(Sketcher.Constraint("Equal", 24, 28))
sketch8.addConstraint(Sketcher.Constraint("Equal", 28, 30))
sketch8.addConstraint(Sketcher.Constraint("Equal", 27, 31))
sketch8.addConstraint(Sketcher.Constraint("Equal", 26, 32))
sketch8.addConstraint(Sketcher.Constraint("Equal", 31, 33))
sketch8.addConstraint(Sketcher.Constraint("Equal", 30, 34))
sketch8.addConstraint(Sketcher.Constraint("Horizontal", 2, 3, 0, 2))
sketch8.addConstraint(Sketcher.Constraint("Vertical", 3, 3, 7, 3))
sketch8.addConstraint(Sketcher.Constraint("Vertical", 2, 3, 8, 3))
sketch8.addConstraint(Sketcher.Constraint("Vertical", 7, 3, 9, 3))
sketch8.addConstraint(Sketcher.Constraint("Vertical", 6, 3, 10, 3))
sketch8.addConstraint(Sketcher.Constraint("Vertical", 9, 3, 13, 3))
sketch8.addConstraint(Sketcher.Constraint("Vertical", 8, 3, 14, 3))
sketch8.addConstraint(Sketcher.Constraint("Vertical", 13, 3, 15, 3))
sketch8.addConstraint(Sketcher.Constraint("Vertical", 12, 3, 16, 3))
sketch8.addConstraint(Sketcher.Constraint("Vertical", 15, 3, 19, 3))
sketch8.addConstraint(Sketcher.Constraint("Vertical", 14, 3, 20, 3))
sketch8.addConstraint(Sketcher.Constraint("Vertical", 19, 3, 21, 3))
sketch8.addConstraint(Sketcher.Constraint("Vertical", 18, 3, 22, 3))
sketch8.addConstraint(Sketcher.Constraint("Vertical", 21, 3, 25, 3))
sketch8.addConstraint(Sketcher.Constraint("Vertical", 20, 3, 26, 3))
sketch8.addConstraint(Sketcher.Constraint("Vertical", 25, 3, 27, 3))
sketch8.addConstraint(Sketcher.Constraint("Vertical", 24, 3, 28, 3))
sketch8.addConstraint(Sketcher.Constraint("Vertical", 27, 3, 31, 3))
sketch8.addConstraint(Sketcher.Constraint("Vertical", 26, 3, 32, 3))
sketch8.addConstraint(Sketcher.Constraint("Vertical", 31, 3, 33, 3))
sketch8.addConstraint(Sketcher.Constraint("Vertical", 30, 3, 34, 3))
sketch8.addConstraint(Sketcher.Constraint("Vertical", 33, 3, 4, 1))
sketch8.addConstraint(Sketcher.Constraint("Equal", 5, 11))
sketch8.addConstraint(Sketcher.Constraint("Equal", 11, 17))
sketch8.addConstraint(Sketcher.Constraint("Equal", 17, 23))
sketch8.addConstraint(Sketcher.Constraint("Equal", 23, 29))
sketch8.addConstraint(Sketcher.Constraint("Radius", 3, 1.0))
sketch8.addConstraint(Sketcher.Constraint("DistanceY", 0, 1, 0, 2, 11.0))
sketch8.addConstraint(Sketcher.Constraint("Radius", 4, 0.15))
sketch8.addConstraint(Sketcher.Constraint("DistanceY", -1, 1, 2, 3, 29.0))
sketch8.addConstraint(Sketcher.Constraint("DistanceY", -1, 1, 8, 3, 27.0))
sketch8.addConstraint(Sketcher.Constraint("Radius", 2, 0.555))
sketch8.addConstraint(Sketcher.Constraint("DistanceX", 1, 2, 1, 1, 1.43))
sketch8.addConstraint(Sketcher.Constraint("DistanceX", 36, 1, 36, 2, 0.68))
sketch8.addConstraint(Sketcher.Constraint("DistanceX", 2, 2, -1, 1, 22.86284))
sketch8.setExpression("Constraints[97]", "Params.sketch8_radius")
sketch8.setExpression("Constraints[98]", "Params.sketch8_height")
sketch8.setExpression("Constraints[99]", "Params.sketch8_radius2")
sketch8.setExpression("Constraints[103]", "Params.sketch8_width")
sketch8.setExpression("Constraints[104]", "Params.sketch8_width2")
pocket3 = body.newObject("PartDesign::Pocket", "Pocket002")
pocket3.Profile = sketch8
pocket3.setExpression("Length", "Params.pocket3_length")

doc.recompute()
